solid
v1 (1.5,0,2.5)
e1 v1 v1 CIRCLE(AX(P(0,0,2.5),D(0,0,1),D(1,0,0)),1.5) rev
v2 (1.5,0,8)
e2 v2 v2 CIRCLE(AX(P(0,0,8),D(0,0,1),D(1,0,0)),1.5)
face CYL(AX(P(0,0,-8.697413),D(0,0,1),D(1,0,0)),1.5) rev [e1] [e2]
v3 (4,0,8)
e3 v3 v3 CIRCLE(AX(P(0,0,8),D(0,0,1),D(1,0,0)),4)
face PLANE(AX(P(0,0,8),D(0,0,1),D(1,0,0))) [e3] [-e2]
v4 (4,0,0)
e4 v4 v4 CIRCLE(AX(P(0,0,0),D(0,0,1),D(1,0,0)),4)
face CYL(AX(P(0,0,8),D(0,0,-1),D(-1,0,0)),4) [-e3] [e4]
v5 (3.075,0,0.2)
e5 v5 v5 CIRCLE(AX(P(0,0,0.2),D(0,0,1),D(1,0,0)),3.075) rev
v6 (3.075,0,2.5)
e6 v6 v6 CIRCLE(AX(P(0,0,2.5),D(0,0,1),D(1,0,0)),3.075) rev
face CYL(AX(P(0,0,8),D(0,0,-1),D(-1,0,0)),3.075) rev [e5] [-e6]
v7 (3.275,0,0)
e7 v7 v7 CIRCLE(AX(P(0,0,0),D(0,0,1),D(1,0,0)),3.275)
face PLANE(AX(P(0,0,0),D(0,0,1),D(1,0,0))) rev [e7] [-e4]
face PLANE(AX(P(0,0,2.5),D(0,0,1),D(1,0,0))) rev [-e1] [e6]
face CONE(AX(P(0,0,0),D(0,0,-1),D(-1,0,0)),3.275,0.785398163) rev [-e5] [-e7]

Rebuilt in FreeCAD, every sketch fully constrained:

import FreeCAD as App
import Part
import Sketcher
from FreeCAD import Vector
Q = App.Units.Quantity


def edges_at(feature, points):
    """Names of the edges that pass closest to the given points."""
    edges = feature.Shape.Edges
    near = lambda p: min(range(len(edges)), key=lambda i: edges[i].distToShape(Part.Vertex(*p))[0])
    return sorted({f"Edge{near(p) + 1}" for p in points})

doc = App.newDocument("Part")
body = doc.addObject("PartDesign::Body", "Body")

# Sketch on XY plane
sketch1 = body.newObject("Sketcher::SketchObject", "Sketch")
sketch1.AttachmentSupport = (doc.getObject("XY_Plane"), [""])
sketch1.MapMode = "FlatFace"
sketch1.addGeometry([
    Part.Circle(Vector(0, 0, 0), Vector(0, 0, 1), 4),
    Part.Circle(Vector(0, 0, 0), Vector(0, 0, 1), 3.1),
], False)
sketch1.addConstraint([
    Sketcher.Constraint("Coincident", 0, 3, -1, 1),
    Sketcher.Constraint("Coincident", 1, 3, -1, 1),
    Sketcher.Constraint("Diameter", 0, Q("8 mm")),
    Sketcher.Constraint("Diameter", 1, Q("6.15 mm")),
])
pad1 = body.newObject("PartDesign::Pad", "Pad")
pad1.Profile = sketch1
pad1.Length = 8

# Sketch on XY plane
sketch2 = body.newObject("Sketcher::SketchObject", "Sketch001")
sketch2.AttachmentSupport = (doc.getObject("XY_Plane"), [""])
sketch2.MapMode = "FlatFace"
sketch2.AttachmentOffset = App.Placement(Vector(0, 0, 2.5), App.Rotation())
sketch2.addGeometry([
    Part.Circle(Vector(0, 0, 0), Vector(0, 0, 1), 3.1),
    Part.Circle(Vector(0, 0, 0), Vector(0, 0, 1), 1.5),
], False)
sketch2.addConstraint([
    Sketcher.Constraint("Coincident", 0, 3, -1, 1),
    Sketcher.Constraint("Coincident", 1, 3, -1, 1),
    Sketcher.Constraint("Diameter", 1, Q("3 mm")),
    Sketcher.Constraint("Diameter", 0, Q("6.15 mm")),
])
pad2 = body.newObject("PartDesign::Pad", "Pad001")
pad2.Profile = sketch2
pad2.Length = 5.5
doc.recompute()

chamfer = body.newObject("PartDesign::Chamfer", "Chamfer")
chamfer.Base = (pad2, edges_at(pad2, [(-3.075, 0, 0)]))
chamfer.Size = 0.2

doc.recompute()
